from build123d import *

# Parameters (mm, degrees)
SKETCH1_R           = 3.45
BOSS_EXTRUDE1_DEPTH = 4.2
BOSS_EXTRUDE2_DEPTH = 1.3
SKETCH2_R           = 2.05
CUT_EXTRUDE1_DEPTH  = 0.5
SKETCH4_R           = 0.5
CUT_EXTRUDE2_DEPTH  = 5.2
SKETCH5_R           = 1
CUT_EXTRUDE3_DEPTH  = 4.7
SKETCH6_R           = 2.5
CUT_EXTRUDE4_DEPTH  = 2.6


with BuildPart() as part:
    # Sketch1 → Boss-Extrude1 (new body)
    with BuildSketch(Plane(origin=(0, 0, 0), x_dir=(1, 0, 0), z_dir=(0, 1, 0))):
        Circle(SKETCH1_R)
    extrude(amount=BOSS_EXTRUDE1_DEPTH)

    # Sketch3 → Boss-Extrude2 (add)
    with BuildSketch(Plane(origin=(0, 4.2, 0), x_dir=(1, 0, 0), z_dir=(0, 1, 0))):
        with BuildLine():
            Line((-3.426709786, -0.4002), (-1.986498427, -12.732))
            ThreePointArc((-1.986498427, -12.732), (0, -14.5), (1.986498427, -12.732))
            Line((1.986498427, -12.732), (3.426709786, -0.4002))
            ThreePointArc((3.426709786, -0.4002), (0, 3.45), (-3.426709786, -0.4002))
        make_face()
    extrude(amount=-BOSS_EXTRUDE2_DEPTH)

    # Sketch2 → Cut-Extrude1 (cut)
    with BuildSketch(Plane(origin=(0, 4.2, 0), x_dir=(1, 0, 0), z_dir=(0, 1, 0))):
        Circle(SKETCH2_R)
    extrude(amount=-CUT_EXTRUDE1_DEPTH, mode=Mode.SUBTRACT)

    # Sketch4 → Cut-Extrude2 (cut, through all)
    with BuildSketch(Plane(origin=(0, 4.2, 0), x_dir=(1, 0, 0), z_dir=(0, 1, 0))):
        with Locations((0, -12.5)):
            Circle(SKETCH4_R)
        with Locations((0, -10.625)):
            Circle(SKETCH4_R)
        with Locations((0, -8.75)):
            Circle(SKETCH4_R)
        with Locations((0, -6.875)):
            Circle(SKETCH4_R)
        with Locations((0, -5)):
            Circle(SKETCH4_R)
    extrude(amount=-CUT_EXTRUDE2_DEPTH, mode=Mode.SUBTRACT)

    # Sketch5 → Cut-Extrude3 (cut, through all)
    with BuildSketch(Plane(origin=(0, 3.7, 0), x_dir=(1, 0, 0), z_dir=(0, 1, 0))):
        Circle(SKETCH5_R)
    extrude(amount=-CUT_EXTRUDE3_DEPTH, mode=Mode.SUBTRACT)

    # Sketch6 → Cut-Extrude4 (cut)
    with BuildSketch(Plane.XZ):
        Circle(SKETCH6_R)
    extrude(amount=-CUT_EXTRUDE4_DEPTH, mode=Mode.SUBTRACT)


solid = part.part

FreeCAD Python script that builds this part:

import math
import FreeCAD as App
import Part
import Sketcher

doc = App.newDocument("Part")
body = doc.addObject("PartDesign::Body", "Body")

sketch1 = body.newObject("Sketcher::SketchObject", "Sketch")
sketch1.AttachmentSupport = (doc.getObject("XZ_Plane"), [""])
sketch1.MapMode = "FlatFace"
sketch1.addGeometry(Part.Circle(App.Vector(0, 0, 0), App.Vector(0, 0, 1), 3.5), False)
sketch1.addConstraint([
    Sketcher.Constraint("Coincident", 0, 3, -1, 1),
    Sketcher.Constraint("Diameter", 0, 6.9),
])
pad1 = body.newObject("PartDesign::Pad", "Pad")
pad1.Profile = sketch1
pad1.Length = 4.2
pad1.Reversed = True

sketch2 = body.newObject("Sketcher::SketchObject", "Sketch001")
sketch2.AttachmentSupport = (doc.getObject("XZ_Plane"), [""])
sketch2.MapMode = "FlatFace"
sketch2.AttachmentOffset = App.Placement(App.Vector(0, 0, -4.2), App.Rotation())
sketch2.addGeometry([
    Part.LineSegment(App.Vector(-3.4, 0.4, 0), App.Vector(-2, 12.7, 0)),
    Part.ArcOfCircle(Part.Circle(App.Vector(0, 12.5, 0), App.Vector(0, 0, 1), 2), math.radians(7), math.radians(173)),
    Part.LineSegment(App.Vector(2, 12.7, 0), App.Vector(3.4, 0.4, 0)),
    Part.ArcOfCircle(Part.Circle(App.Vector(0, 0, 0), App.Vector(0, 0, 1), 3.5), math.radians(173), math.radians(367)),
], False)
sketch2.addConstraint([
    Sketcher.Constraint("Tangent", 0, 2, 1, 2),
    Sketcher.Constraint("Tangent", 1, 1, 2, 1),
    Sketcher.Constraint("Tangent", 2, 2, 3, 2),
    Sketcher.Constraint("Tangent", 3, 1, 0, 1),
    Sketcher.Constraint("Coincident", 3, 3, -1, 1),
    Sketcher.Constraint("PointOnObject", 1, 3, -2),
    Sketcher.Constraint("Radius", 1, 2.0),
    Sketcher.Constraint("Radius", 3, 3.45),
    Sketcher.Constraint("DistanceY", -1, 1, 1, 3, 12.5),
])
pad2 = body.newObject("PartDesign::Pad", "Pad001")
pad2.Profile = sketch2
pad2.Length = 1.3

sketch3 = body.newObject("Sketcher::SketchObject", "Sketch002")
sketch3.AttachmentSupport = (doc.getObject("XZ_Plane"), [""])
sketch3.MapMode = "FlatFace"
sketch3.AttachmentOffset = App.Placement(App.Vector(0, 0, -4.2), App.Rotation())
sketch3.addGeometry(Part.Circle(App.Vector(0, 0, 0), App.Vector(0, 0, 1), 2), False)
sketch3.addConstraint([
    Sketcher.Constraint("Coincident", 0, 3, -1, 1),
    Sketcher.Constraint("Diameter", 0, 4.1),
])
pocket1 = body.newObject("PartDesign::Pocket", "Pocket")
pocket1.Profile = sketch3
pocket1.Length = 0.5
pocket1.Reversed = True

sketch4 = body.newObject("Sketcher::SketchObject", "Sketch003")
sketch4.AttachmentSupport = (doc.getObject("XZ_Plane"), [""])
sketch4.MapMode = "FlatFace"
sketch4.AttachmentOffset = App.Placement(App.Vector(0, 0, -4.2), App.Rotation())
sketch4.addGeometry([
    Part.Circle(App.Vector(0, 12.5, 0), App.Vector(0, 0, 1), 0.5),
    Part.Circle(App.Vector(0, 10.6, 0), App.Vector(0, 0, 1), 0.5),
    Part.Circle(App.Vector(0, 8.8, 0), App.Vector(0, 0, 1), 0.5),
    Part.Circle(App.Vector(0, 6.9, 0), App.Vector(0, 0, 1), 0.5),
    Part.Circle(App.Vector(0, 5, 0), App.Vector(0, 0, 1), 0.5),
], False)
sketch4.addConstraint([
    Sketcher.Constraint("Equal", 0, 1),
    Sketcher.Constraint("Equal", 1, 2),
    Sketcher.Constraint("Equal", 2, 3),
    Sketcher.Constraint("Equal", 3, 4),
    Sketcher.Constraint("PointOnObject", 0, 3, -2),
    Sketcher.Constraint("PointOnObject", 1, 3, -2),
    Sketcher.Constraint("PointOnObject", 2, 3, -2),
    Sketcher.Constraint("PointOnObject", 3, 3, -2),
    Sketcher.Constraint("PointOnObject", 4, 3, -2),
    Sketcher.Constraint("Diameter", 0, 1.0),
    Sketcher.Constraint("DistanceY", -1, 1, 4, 3, 5.0),
    Sketcher.Constraint("DistanceY", -1, 1, 0, 3, 12.5),
    Sketcher.Constraint("DistanceY", -1, 1, 2, 3, 8.75),
    Sketcher.Constraint("DistanceY", 3, 3, 1, 3, 3.75),
    Sketcher.Constraint("DistanceY", -1, 1, 1, 3, 10.625),
])
pocket2 = body.newObject("PartDesign::Pocket", "Pocket001")
pocket2.Profile = sketch4
pocket2.Type = "ThroughAll"
pocket2.Reversed = True

sketch5 = body.newObject("Sketcher::SketchObject", "Sketch004")
sketch5.AttachmentSupport = (doc.getObject("XZ_Plane"), [""])
sketch5.MapMode = "FlatFace"
sketch5.AttachmentOffset = App.Placement(App.Vector(0, 0, -3.7), App.Rotation())
sketch5.addGeometry(Part.Circle(App.Vector(0, 0, 0), App.Vector(0, 0, 1), 1), False)
sketch5.addConstraint([
    Sketcher.Constraint("Coincident", 0, 3, -1, 1),
    Sketcher.Constraint("Diameter", 0, 2.0),
])
pocket3 = body.newObject("PartDesign::Pocket", "Pocket002")
pocket3.Profile = sketch5
pocket3.Type = "ThroughAll"
pocket3.Reversed = True

sketch6 = body.newObject("Sketcher::SketchObject", "Sketch005")
sketch6.AttachmentSupport = (doc.getObject("XZ_Plane"), [""])
sketch6.MapMode = "FlatFace"
sketch6.addGeometry(Part.Circle(App.Vector(0, 0, 0), App.Vector(0, 0, 1), 2.5), False)
sketch6.addConstraint([
    Sketcher.Constraint("Coincident", 0, 3, -1, 1),
    Sketcher.Constraint("Diameter", 0, 5.0),
])
pocket4 = body.newObject("PartDesign::Pocket", "Pocket003")
pocket4.Profile = sketch6
pocket4.Length = 2.6

doc.recompute()
